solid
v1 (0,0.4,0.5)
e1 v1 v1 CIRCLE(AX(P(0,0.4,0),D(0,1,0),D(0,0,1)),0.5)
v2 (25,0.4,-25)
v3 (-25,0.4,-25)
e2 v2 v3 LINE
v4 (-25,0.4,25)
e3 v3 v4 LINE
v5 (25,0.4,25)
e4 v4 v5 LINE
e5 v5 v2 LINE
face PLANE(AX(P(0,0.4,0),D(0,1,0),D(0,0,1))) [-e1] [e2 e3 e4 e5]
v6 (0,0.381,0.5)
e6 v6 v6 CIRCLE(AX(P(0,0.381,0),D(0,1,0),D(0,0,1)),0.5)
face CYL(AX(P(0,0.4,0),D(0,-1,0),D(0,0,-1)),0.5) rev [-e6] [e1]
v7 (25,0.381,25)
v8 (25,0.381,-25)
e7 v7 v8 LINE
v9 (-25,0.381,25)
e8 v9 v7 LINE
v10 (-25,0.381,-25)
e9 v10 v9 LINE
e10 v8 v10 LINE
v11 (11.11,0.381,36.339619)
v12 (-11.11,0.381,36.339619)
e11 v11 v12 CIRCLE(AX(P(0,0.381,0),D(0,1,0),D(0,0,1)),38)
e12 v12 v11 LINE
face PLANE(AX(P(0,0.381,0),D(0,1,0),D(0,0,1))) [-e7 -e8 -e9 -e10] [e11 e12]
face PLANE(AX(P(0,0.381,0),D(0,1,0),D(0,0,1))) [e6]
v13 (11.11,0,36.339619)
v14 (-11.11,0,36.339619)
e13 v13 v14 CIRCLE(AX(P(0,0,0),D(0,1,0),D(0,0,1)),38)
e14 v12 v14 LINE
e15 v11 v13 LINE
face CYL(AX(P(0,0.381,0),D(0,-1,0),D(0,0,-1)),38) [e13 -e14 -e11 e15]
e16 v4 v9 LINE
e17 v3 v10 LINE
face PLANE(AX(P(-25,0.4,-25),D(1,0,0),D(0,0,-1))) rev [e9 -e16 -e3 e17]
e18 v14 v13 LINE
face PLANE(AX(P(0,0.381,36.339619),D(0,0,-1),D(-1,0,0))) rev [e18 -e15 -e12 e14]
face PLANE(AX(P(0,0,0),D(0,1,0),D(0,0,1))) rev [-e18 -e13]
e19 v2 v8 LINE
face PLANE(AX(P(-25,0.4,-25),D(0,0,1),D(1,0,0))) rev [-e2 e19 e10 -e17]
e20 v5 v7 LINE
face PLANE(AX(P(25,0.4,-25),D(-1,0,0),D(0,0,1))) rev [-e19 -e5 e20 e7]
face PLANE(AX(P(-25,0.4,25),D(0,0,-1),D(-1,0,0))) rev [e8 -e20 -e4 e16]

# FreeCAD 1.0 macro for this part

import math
import FreeCAD as App
import Part
import Sketcher
from FreeCAD import Vector


def add_polygon(sketch, points):
    """Adds a closed chain of lines whose ends are joined by coincident constraints."""
    first, n = sketch.GeometryCount, len(points)
    for a, b in zip(points, points[1:] + points[:1]):
        sketch.addGeometry(Part.LineSegment(App.Vector(*a, 0), App.Vector(*b, 0)), False)
    for i in range(n):
        sketch.addConstraint(Sketcher.Constraint("Coincident", first + i, 2, first + (i + 1) % n, 1))

doc = App.newDocument("Part")
params = doc.addObject("Spreadsheet::Sheet", "Params")
for row, (alias, value) in enumerate([
    ("sketch1_diameter", "1 mm"),
    ("sketch1_width", "50 mm"),
    ("pad1_length", "0.4 mm"),
    ("sketch2_radius", "38 mm"),
    ("sketch2_width", "22.22 mm"),
    ("pad2_length", "0.381 mm"),
], start=1):
    params.set(f"A{row}", alias)
    params.set(f"B{row}", "=" + value)
    params.setAlias(f"B{row}", alias)

body = doc.addObject("PartDesign::Body", "Body")

# Sketch on XZ plane
sketch1 = body.newObject("Sketcher::SketchObject", "Sketch")
sketch1.AttachmentSupport = (doc.getObject("XZ_Plane"), [""])
sketch1.MapMode = "FlatFace"
add_polygon(sketch1, [(-25, -25), (-25, 25), (25, 25), (25, -25)])  # lines 0-3
sketch1.addGeometry(Part.Circle(Vector(0, 0, 0), Vector(0, 0, 1), 0.5), False)  # 4
sketch1.addConstraint([
    Sketcher.Constraint("Vertical", 0),
    Sketcher.Constraint("Horizontal", 1),
    Sketcher.Constraint("Vertical", 2),
    Sketcher.Constraint("Horizontal", 3),
    Sketcher.Constraint("Coincident", 4, 3, -1, 1),
    Sketcher.Constraint("Symmetric", 0, 2, 2, 2, -1, 1),
    Sketcher.Constraint("Equal", 3, 0),
    Sketcher.Constraint("Diameter", 4, 1.0),
    Sketcher.Constraint("DistanceX", 1, 1, 1, 2, 50.0),
])
sketch1.setExpression("Constraints[11]", "Params.sketch1_diameter")
sketch1.setExpression("Constraints[12]", "Params.sketch1_width")
pad1 = body.newObject("PartDesign::Pad", "Pad")
pad1.Profile = sketch1
pad1.setExpression("Length", "Params.pad1_length")
pad1.Reversed = True

# Sketch on XZ plane
sketch2 = body.newObject("Sketcher::SketchObject", "Sketch001")
sketch2.AttachmentSupport = (doc.getObject("XZ_Plane"), [""])
sketch2.MapMode = "FlatFace"
sketch2.addGeometry([
    Part.ArcOfCircle(Part.Circle(Vector(0, 0, 0), Vector(0, 0, 1), 38), math.radians(107), math.radians(360)),
    Part.LineSegment(Vector(-11, 36, 0), Vector(11, 36, 0)),
    Part.ArcOfCircle(Part.Circle(Vector(0, 0, 0), Vector(0, 0, 1), 38), math.radians(0), math.radians(73)),
], False)
sketch2.addConstraint([
    Sketcher.Constraint("Coincident", 0, 1, 1, 1),
    Sketcher.Constraint("Coincident", 1, 2, 2, 2),
    Sketcher.Constraint("Tangent", 2, 1, 0, 2),
    Sketcher.Constraint("Horizontal", 1),
    Sketcher.Constraint("Coincident", 0, 3, -1, 1),
    Sketcher.Constraint("Equal", 0, 2),
    Sketcher.Constraint("PointOnObject", 2, 1, -1),
    Sketcher.Constraint("Radius", 0, 38.0),
    Sketcher.Constraint("DistanceX", 1, 1, 1, 2, 22.22),
])
sketch2.setExpression("Constraints[7]", "Params.sketch2_radius")
sketch2.setExpression("Constraints[8]", "Params.sketch2_width")
pad2 = body.newObject("PartDesign::Pad", "Pad001")
pad2.Profile = sketch2
pad2.setExpression("Length", "Params.pad2_length")
pad2.Reversed = True

doc.recompute()
